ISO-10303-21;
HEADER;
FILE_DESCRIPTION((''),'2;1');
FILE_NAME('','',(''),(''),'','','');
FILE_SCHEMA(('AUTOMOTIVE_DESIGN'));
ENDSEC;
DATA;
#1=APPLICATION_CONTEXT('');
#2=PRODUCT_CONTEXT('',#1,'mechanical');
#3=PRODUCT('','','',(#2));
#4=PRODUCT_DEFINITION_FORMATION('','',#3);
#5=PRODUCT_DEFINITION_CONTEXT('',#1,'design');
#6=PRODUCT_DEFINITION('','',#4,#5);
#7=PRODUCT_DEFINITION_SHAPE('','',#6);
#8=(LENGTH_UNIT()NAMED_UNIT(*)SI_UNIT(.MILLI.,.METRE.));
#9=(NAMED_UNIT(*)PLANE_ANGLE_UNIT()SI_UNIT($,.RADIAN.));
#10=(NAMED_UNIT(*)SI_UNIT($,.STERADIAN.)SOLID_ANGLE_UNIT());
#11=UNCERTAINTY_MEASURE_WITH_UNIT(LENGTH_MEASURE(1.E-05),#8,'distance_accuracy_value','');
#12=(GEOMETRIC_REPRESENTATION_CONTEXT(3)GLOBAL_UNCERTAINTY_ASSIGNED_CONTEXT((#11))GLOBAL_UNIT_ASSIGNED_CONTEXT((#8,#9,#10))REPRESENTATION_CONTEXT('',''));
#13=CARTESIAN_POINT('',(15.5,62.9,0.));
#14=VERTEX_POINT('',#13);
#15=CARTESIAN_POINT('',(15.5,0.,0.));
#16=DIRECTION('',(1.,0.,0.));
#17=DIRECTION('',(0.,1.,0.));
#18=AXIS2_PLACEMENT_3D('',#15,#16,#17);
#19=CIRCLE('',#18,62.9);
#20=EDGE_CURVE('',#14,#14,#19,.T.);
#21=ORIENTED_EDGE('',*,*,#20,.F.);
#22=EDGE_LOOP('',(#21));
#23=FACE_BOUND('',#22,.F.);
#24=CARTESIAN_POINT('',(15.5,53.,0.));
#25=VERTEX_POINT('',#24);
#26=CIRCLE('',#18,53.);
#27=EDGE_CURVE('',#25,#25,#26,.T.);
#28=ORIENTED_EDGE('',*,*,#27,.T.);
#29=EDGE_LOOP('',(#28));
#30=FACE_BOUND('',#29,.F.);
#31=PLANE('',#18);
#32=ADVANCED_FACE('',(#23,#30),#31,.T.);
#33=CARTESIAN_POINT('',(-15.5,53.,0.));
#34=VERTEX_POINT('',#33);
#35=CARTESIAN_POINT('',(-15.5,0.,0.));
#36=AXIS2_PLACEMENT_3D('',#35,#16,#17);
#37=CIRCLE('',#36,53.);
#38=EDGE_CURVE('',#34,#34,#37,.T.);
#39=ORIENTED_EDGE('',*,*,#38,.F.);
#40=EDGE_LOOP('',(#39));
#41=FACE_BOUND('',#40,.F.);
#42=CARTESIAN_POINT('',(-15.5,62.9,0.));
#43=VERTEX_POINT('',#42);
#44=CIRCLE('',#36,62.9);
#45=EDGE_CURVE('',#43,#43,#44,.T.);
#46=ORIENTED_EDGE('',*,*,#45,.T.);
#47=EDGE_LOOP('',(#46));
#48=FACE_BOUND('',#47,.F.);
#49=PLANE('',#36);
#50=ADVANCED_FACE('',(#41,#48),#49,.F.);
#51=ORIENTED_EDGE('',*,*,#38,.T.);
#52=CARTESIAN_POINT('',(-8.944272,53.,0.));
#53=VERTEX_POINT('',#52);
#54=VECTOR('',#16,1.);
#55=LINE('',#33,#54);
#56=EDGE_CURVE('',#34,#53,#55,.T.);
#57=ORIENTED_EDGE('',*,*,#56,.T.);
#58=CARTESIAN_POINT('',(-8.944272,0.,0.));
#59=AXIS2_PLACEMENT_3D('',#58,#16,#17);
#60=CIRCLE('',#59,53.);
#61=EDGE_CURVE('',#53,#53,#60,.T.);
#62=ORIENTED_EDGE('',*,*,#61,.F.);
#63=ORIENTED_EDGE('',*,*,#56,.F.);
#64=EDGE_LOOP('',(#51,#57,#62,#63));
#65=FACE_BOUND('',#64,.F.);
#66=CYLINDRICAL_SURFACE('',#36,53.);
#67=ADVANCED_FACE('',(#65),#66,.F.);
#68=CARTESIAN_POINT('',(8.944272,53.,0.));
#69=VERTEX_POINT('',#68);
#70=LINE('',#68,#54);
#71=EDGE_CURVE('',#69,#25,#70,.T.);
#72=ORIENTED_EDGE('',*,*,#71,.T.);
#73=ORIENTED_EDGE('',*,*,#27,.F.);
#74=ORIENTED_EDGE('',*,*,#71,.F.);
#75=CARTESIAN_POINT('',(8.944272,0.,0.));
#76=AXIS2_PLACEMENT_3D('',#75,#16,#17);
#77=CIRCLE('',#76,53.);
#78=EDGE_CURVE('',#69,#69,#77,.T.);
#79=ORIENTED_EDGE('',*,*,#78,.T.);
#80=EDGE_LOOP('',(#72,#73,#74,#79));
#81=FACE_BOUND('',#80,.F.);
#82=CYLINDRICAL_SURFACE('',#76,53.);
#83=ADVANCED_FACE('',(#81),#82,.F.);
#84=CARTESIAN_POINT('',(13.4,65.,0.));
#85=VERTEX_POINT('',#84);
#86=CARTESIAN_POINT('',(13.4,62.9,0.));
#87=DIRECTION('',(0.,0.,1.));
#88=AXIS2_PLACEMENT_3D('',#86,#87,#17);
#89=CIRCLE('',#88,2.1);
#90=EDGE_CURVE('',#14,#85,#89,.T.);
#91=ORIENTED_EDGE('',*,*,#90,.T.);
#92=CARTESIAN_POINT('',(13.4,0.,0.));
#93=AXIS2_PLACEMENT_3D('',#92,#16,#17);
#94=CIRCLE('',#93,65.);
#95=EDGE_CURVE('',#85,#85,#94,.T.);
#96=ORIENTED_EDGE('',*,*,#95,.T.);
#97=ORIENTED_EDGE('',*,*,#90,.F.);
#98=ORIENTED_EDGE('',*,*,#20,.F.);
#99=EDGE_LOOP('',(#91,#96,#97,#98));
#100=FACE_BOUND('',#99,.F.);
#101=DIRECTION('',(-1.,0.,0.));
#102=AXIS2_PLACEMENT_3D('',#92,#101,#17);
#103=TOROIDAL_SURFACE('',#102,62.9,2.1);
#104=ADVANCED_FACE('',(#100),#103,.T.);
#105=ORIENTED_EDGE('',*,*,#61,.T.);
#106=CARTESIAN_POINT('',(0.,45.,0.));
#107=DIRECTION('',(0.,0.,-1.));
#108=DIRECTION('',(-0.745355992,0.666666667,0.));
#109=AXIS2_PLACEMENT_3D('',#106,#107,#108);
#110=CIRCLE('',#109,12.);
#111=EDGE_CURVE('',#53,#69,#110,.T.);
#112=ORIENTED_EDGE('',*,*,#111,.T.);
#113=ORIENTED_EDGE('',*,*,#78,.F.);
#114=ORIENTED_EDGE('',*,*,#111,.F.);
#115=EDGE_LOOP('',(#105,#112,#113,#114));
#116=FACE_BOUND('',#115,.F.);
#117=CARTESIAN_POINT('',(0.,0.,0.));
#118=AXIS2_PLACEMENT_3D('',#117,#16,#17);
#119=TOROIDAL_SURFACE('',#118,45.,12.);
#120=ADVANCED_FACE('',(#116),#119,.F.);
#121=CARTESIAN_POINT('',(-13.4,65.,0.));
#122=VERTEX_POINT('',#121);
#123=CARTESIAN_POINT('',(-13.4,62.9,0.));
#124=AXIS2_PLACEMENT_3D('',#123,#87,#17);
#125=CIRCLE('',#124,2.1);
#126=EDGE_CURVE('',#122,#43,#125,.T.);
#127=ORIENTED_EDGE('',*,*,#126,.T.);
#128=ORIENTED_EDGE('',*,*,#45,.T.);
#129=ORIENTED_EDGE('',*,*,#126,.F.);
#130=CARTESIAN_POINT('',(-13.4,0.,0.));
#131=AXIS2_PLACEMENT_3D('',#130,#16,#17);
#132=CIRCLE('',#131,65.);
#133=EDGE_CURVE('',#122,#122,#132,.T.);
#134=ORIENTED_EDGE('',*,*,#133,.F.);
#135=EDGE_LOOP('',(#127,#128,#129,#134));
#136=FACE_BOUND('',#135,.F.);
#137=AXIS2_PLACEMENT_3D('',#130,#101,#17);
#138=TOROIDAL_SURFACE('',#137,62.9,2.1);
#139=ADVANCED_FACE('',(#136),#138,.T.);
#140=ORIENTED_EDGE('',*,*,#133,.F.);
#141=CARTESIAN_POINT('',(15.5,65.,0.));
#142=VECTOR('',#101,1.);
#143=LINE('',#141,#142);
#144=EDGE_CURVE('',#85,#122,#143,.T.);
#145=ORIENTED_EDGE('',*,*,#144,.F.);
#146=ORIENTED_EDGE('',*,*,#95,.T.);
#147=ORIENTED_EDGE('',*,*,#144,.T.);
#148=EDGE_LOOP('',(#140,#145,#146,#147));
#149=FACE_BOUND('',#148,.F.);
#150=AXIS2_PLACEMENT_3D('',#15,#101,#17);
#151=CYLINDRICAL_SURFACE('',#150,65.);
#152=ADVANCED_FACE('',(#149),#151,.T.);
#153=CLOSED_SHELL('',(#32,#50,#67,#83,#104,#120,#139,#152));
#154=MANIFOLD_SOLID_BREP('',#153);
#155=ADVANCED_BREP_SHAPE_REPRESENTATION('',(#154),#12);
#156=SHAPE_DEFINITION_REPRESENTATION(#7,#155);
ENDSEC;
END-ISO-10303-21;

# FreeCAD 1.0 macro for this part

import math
import FreeCAD as App
import Part
import Sketcher


def edges_at(feature, points):
    """Names of the edges that pass closest to the given points."""
    edges = feature.Shape.Edges
    near = lambda p: min(range(len(edges)), key=lambda i: edges[i].distToShape(Part.Vertex(*p))[0])
    return sorted({f"Edge{near(p) + 1}" for p in points})

doc = App.newDocument("Part")
body = doc.addObject("PartDesign::Body", "Body")

sketch1 = doc.addObject("Sketcher::SketchObject", "Sketch")
body.addObject(sketch1)
sketch1.AttachmentSupport = (doc.XY_Plane, [""])
sketch1.MapMode = "FlatFace"
sketch1.addGeometry(Part.LineSegment(App.Vector(8.944272, 53, 0), App.Vector(15.5, 53, 0)), False)
sketch1.addGeometry(Part.LineSegment(App.Vector(15.5, 53, 0), App.Vector(15.5, 65, 0)), False)
sketch1.addGeometry(Part.LineSegment(App.Vector(15.5, 65, 0), App.Vector(-15.5, 65, 0)), False)
sketch1.addGeometry(Part.LineSegment(App.Vector(-15.5, 65, 0), App.Vector(-15.5, 53, 0)), False)
sketch1.addGeometry(Part.LineSegment(App.Vector(-15.5, 53, 0), App.Vector(-8.944272, 53, 0)), False)
sketch1.addGeometry(Part.ArcOfCircle(Part.Circle(App.Vector(0, 45, 0), App.Vector(0, 0, 1), 12), math.radians(41.810315), math.radians(138.189685)), False)
sketch1.addConstraint(Sketcher.Constraint("Coincident", 0, 2, 1, 1))
sketch1.addConstraint(Sketcher.Constraint("Coincident", 1, 2, 2, 1))
sketch1.addConstraint(Sketcher.Constraint("Coincident", 2, 2, 3, 1))
sketch1.addConstraint(Sketcher.Constraint("Coincident", 3, 2, 4, 1))
sketch1.addConstraint(Sketcher.Constraint("Coincident", 4, 2, 5, 2))
sketch1.addConstraint(Sketcher.Constraint("Coincident", 5, 1, 0, 1))
sketch1.addConstraint(Sketcher.Constraint("Horizontal", 0))
sketch1.addConstraint(Sketcher.Constraint("Vertical", 1))
sketch1.addConstraint(Sketcher.Constraint("Horizontal", 2))
sketch1.addConstraint(Sketcher.Constraint("Vertical", 3))
sketch1.addConstraint(Sketcher.Constraint("Horizontal", 4))
sketch1.addConstraint(Sketcher.Constraint("Symmetric", 0, 2, 3, 2, -2))
sketch1.addConstraint(Sketcher.Constraint("PointOnObject", 5, 3, -2))
sketch1.addConstraint(Sketcher.Constraint("Radius", 5, 12.0))
sketch1.addConstraint(Sketcher.Constraint("DistanceX", 2, 2, 2, 1, 31.0))
sketch1.addConstraint(Sketcher.Constraint("DistanceY", 1, 1, 1, 2, 12.0))
sketch1.addConstraint(Sketcher.Constraint("DistanceY", -1, 1, 5, 3, 45.0))
sketch1.addConstraint(Sketcher.Constraint("DistanceY", -1, 1, 0, 2, 53.0))
revolution = doc.addObject("PartDesign::Revolution", "Revolution")
body.addObject(revolution)
revolution.Profile = sketch1
revolution.ReferenceAxis = (sketch1, ["H_Axis"])
revolution.Angle = 360
doc.recompute()

fillet = doc.addObject("PartDesign::Fillet", "Fillet")
body.addObject(fillet)
fillet.Base = (revolution, edges_at(revolution, [(15.5, -65, 0), (-15.5, -65, 0)]))
fillet.Radius = 2.1

doc.recompute()
